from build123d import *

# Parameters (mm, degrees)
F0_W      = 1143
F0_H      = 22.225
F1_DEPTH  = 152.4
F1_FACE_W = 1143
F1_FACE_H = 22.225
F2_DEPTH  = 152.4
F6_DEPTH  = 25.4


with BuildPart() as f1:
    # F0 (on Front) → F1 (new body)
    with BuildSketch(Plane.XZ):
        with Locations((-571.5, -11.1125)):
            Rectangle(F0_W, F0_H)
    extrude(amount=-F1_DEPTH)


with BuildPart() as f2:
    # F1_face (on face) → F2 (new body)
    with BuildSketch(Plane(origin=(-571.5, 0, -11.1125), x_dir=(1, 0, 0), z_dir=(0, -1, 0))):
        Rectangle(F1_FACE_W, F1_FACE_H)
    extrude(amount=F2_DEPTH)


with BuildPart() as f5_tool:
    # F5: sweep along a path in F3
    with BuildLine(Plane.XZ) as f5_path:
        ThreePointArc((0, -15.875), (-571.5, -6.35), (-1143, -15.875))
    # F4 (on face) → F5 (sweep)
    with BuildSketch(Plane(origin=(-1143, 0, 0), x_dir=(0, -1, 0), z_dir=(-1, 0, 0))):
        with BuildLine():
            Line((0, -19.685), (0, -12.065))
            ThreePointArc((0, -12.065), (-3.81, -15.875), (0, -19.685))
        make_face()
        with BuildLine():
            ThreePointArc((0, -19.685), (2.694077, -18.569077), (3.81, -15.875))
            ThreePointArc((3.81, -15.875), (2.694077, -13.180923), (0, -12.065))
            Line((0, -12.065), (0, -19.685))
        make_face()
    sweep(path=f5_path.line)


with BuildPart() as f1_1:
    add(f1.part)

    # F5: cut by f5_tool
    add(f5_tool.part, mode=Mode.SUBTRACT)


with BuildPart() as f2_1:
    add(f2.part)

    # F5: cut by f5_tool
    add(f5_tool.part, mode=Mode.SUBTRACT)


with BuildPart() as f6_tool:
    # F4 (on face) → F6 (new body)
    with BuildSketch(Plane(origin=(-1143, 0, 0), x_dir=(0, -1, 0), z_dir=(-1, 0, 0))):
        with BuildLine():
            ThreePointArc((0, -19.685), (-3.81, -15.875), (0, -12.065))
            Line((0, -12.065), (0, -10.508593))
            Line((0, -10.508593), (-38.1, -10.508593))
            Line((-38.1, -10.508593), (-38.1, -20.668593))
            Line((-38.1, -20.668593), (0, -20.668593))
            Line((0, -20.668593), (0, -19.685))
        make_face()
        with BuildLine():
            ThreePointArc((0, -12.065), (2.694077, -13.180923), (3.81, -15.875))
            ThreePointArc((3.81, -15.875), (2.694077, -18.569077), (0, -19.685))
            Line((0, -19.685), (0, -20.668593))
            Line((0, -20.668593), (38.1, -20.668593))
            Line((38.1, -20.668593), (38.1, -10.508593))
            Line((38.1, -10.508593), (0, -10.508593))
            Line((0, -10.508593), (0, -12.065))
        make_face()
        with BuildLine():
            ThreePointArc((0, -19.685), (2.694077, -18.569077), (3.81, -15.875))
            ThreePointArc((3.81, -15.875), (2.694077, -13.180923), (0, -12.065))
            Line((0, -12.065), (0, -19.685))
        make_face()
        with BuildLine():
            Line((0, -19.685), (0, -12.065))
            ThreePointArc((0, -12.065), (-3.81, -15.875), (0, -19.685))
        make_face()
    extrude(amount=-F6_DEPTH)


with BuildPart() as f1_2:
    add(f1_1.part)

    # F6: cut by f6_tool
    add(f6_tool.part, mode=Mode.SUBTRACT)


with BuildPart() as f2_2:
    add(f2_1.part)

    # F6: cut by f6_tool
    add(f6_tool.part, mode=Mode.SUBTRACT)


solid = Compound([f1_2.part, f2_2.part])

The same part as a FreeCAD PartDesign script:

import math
import FreeCAD as App
import Part
import Sketcher
from FreeCAD import Vector
Q = App.Units.Quantity


def add_polygon(sketch, points):
    """Adds a closed chain of lines whose ends are joined by coincident constraints."""
    first, n = sketch.GeometryCount, len(points)
    for a, b in zip(points, points[1:] + points[:1]):
        sketch.addGeometry(Part.LineSegment(App.Vector(*a, 0), App.Vector(*b, 0)), False)
    for i in range(n):
        sketch.addConstraint(Sketcher.Constraint("Coincident", first + i, 2, first + (i + 1) % n, 1))

doc = App.newDocument("Part")
body = doc.addObject("PartDesign::Body", "Body")

sketch1 = body.newObject("Sketcher::SketchObject", "Sketch")
sketch1.AttachmentSupport = (doc.getObject("XZ_Plane"), [""])
sketch1.MapMode = "FlatFace"
add_polygon(sketch1, [(-1143, 0), (-1143, -22), (0, -22), (0, 0)])
sketch1.addConstraint(Sketcher.Constraint("Vertical", 0))
sketch1.addConstraint(Sketcher.Constraint("Horizontal", 1))
sketch1.addConstraint(Sketcher.Constraint("Vertical", 2))
sketch1.addConstraint(Sketcher.Constraint("Horizontal", 3))
sketch1.addConstraint(Sketcher.Constraint("Coincident", 2, 2, -1, 1))
sketch1.addConstraint(Sketcher.Constraint("DistanceX", 1, 1, 1, 2, Q("45 in")))
sketch1.addConstraint(Sketcher.Constraint("DistanceY", 0, 2, 0, 1, Q("0.875 in")))
pad1 = body.newObject("PartDesign::Pad", "Pad")
pad1.Profile = sketch1
pad1.Length = Q("6 in")
pad1.Reversed = True
body2 = doc.addObject("PartDesign::Body", "Body001")

sketch2 = body2.newObject("Sketcher::SketchObject", "Sketch001")
sketch2.AttachmentSupport = (doc.getObject("XZ_Plane001"), [""])
sketch2.MapMode = "FlatFace"
add_polygon(sketch2, [(-1143, 0), (-1143, -22), (0, -22), (0, 0)])
sketch2.addConstraint(Sketcher.Constraint("Vertical", 0))
sketch2.addConstraint(Sketcher.Constraint("Horizontal", 1))
sketch2.addConstraint(Sketcher.Constraint("Vertical", 2))
sketch2.addConstraint(Sketcher.Constraint("Horizontal", 3))
sketch2.addConstraint(Sketcher.Constraint("Coincident", 2, 2, -1, 1))
sketch2.addConstraint(Sketcher.Constraint("DistanceX", 1, 1, 1, 2, Q("45 in")))
sketch2.addConstraint(Sketcher.Constraint("DistanceY", 0, 2, 0, 1, Q("0.875 in")))
pad2 = body2.newObject("PartDesign::Pad", "Pad001")
pad2.Profile = sketch2
pad2.Length = Q("6 in")
body3 = doc.addObject("PartDesign::Body", "Body002")

sketch3 = body3.newObject("Sketcher::SketchObject", "Sketch002")
sketch3.AttachmentSupport = (doc.getObject("YZ_Plane002"), [""])
sketch3.MapMode = "FlatFace"
sketch3.AttachmentOffset = App.Placement(Vector(0, 0, -45 * 25.4), App.Rotation())
sketch3.addGeometry(Part.ArcOfCircle(Part.Circle(Vector(0, -15.9, 0), Vector(0, 0, 1), 3.8), math.radians(-90), math.radians(90)), False)
sketch3.addGeometry(Part.ArcOfCircle(Part.Circle(Vector(0, -15.9, 0), Vector(0, 0, 1), 3.8), math.radians(180), math.radians(270)), False)
sketch3.addGeometry(Part.ArcOfCircle(Part.Circle(Vector(0, -15.9, 0), Vector(0, 0, 1), 3.8), math.radians(90), math.radians(180)), False)
sketch3.addConstraint(Sketcher.Constraint("Tangent", 0, 1, 1, 2))
sketch3.addConstraint(Sketcher.Constraint("Tangent", 1, 1, 2, 2))
sketch3.addConstraint(Sketcher.Constraint("Tangent", 2, 1, 0, 2))
sketch3.addConstraint(Sketcher.Constraint("PointOnObject", 0, 3, -2))
sketch3.addConstraint(Sketcher.Constraint("PointOnObject", 0, 1, -2))
sketch3.addConstraint(Sketcher.Constraint("PointOnObject", 2, 1, -2))
sketch3.addConstraint(Sketcher.Constraint("Horizontal", 2, 3, 1, 1))
sketch3.addConstraint(Sketcher.Constraint("Radius", 0, Q("0.15 in")))
sketch3.addConstraint(Sketcher.Constraint("DistanceY", 0, 3, -1, 1, Q("0.625 in")))

sketch4 = body3.newObject("Sketcher::SketchObject", "Sketch003")
sketch4.AttachmentSupport = (doc.getObject("XZ_Plane002"), [""])
sketch4.MapMode = "FlatFace"
sketch4.addGeometry(Part.ArcOfCircle(Part.Circle(Vector(-572, -17156, 0), Vector(0, 0, 1), 17150), math.radians(88.09), math.radians(91.91)), False)
sketch4.addConstraint(Sketcher.Constraint("PointOnObject", 0, 1, -2))
sketch4.addConstraint(Sketcher.Constraint("DistanceX", 0, 2, -1, 1, Q("45 in")))
sketch4.addConstraint(Sketcher.Constraint("Radius", 0, Q("675.1875 in")))
sketch4.addConstraint(Sketcher.Constraint("DistanceX", 0, 3, -1, 1, Q("22.5 in")))
sketch4.addConstraint(Sketcher.Constraint("DistanceY", 0, 3, -1, 1, Q("675.4375 in")))
doc.recompute()

additivepipe = body3.newObject("PartDesign::AdditivePipe", "AdditivePipe")
additivepipe.Profile = sketch3
additivepipe.Spine = (sketch4, ["Edge1"])
doc.recompute()

body4 = doc.addObject("PartDesign::Body", "Body003")
body4.BaseFeature = body3
boolean = body.newObject("PartDesign::Boolean", "Boolean")
boolean.Type = "Cut"
boolean.addObjects([body4])
doc.recompute()

boolean2 = body2.newObject("PartDesign::Boolean", "Boolean001")
boolean2.Type = "Cut"
boolean2.addObjects([body3])
body5 = doc.addObject("PartDesign::Body", "Body004")

sketch5 = body5.newObject("Sketcher::SketchObject", "Sketch004")
sketch5.AttachmentSupport = (doc.getObject("YZ_Plane004"), [""])
sketch5.MapMode = "FlatFace"
sketch5.AttachmentOffset = App.Placement(Vector(0, 0, -45 * 25.4), App.Rotation())
add_polygon(sketch5, [(38, -11), (38, -21), (-38, -21), (-38, -11)])
sketch5.addConstraint(Sketcher.Constraint("Vertical", 0))
sketch5.addConstraint(Sketcher.Constraint("Horizontal", 1))
sketch5.addConstraint(Sketcher.Constraint("Vertical", 2))
sketch5.addConstraint(Sketcher.Constraint("Horizontal", 3))
sketch5.addConstraint(Sketcher.Constraint("DistanceX", 1, 2, 1, 1, Q("3 in")))
sketch5.addConstraint(Sketcher.Constraint("DistanceY", 0, 2, 0, 1, Q("0.4 in")))
sketch5.addConstraint(Sketcher.Constraint("DistanceX", -1, 1, 0, 2, Q("1.5 in")))
sketch5.addConstraint(Sketcher.Constraint("DistanceY", 0, 2, -1, 1, 20.668593))
pad3 = body5.newObject("PartDesign::Pad", "Pad002")
pad3.Profile = sketch5
pad3.Length = Q("1 in")
doc.recompute()

body6 = doc.addObject("PartDesign::Body", "Body005")
body6.BaseFeature = body5
boolean3 = body.newObject("PartDesign::Boolean", "Boolean002")
boolean3.Type = "Cut"
boolean3.addObjects([body6])
doc.recompute()

boolean4 = body2.newObject("PartDesign::Boolean", "Boolean003")
boolean4.Type = "Cut"
boolean4.addObjects([body5])

doc.recompute()
